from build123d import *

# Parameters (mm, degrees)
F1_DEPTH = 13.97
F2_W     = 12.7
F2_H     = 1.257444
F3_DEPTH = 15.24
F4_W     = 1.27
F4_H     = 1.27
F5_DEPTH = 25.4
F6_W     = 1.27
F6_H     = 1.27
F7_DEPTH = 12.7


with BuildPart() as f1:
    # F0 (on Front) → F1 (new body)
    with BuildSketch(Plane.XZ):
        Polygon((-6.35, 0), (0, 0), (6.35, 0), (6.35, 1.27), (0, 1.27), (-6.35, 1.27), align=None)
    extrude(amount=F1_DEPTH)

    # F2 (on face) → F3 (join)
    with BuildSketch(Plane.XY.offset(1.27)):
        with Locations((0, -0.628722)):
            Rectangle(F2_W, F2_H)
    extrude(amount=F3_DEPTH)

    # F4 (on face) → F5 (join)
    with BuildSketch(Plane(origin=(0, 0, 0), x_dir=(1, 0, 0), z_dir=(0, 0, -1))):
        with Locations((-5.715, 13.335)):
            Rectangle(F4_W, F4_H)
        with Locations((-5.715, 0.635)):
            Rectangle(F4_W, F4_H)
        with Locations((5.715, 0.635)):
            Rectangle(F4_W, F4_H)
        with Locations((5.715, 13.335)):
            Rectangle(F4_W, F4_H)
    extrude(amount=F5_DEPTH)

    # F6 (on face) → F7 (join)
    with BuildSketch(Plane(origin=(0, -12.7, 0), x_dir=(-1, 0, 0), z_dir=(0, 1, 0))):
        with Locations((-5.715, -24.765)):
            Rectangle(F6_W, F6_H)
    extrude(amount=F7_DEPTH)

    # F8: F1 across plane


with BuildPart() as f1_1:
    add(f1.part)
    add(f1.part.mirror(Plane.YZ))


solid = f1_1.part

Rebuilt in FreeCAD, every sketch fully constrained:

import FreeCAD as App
import Part
import Sketcher

V = App.Vector
Q = App.Units.Quantity

doc = App.newDocument("Part")
body = doc.addObject("PartDesign::Body", "Body")

# Sketch on XZ plane
sketch1 = body.newObject("Sketcher::SketchObject", "Sketch")
sketch1.AttachmentSupport = (doc.getObject("XZ_Plane"), [""])
sketch1.MapMode = "FlatFace"
sketch1.addGeometry([
    Part.LineSegment(V(-6.35, 0, 0), V(6.35, 0, 0)),
    Part.LineSegment(V(6.35, 0, 0), V(6.35, 1.27, 0)),
    Part.LineSegment(V(6.35, 1.27, 0), V(-6.35, 1.27, 0)),
    Part.LineSegment(V(-6.35, 1.27, 0), V(-6.35, 0, 0)),
], False)
sketch1.addConstraint([
    Sketcher.Constraint("Coincident", 0, 2, 1, 1),
    Sketcher.Constraint("Coincident", 1, 2, 2, 1),
    Sketcher.Constraint("Coincident", 2, 2, 3, 1),
    Sketcher.Constraint("Coincident", 3, 2, 0, 1),
    Sketcher.Constraint("Horizontal", 0),
    Sketcher.Constraint("Vertical", 1),
    Sketcher.Constraint("Horizontal", 2),
    Sketcher.Constraint("Vertical", 3),
    Sketcher.Constraint("Symmetric", 0, 2, 3, 2, -1, 1),
    Sketcher.Constraint("DistanceX", 0, 1, 0, 2, Q("0.5 in")),
    Sketcher.Constraint("DistanceY", 1, 1, 1, 2, Q("0.05 in")),
])
pad1 = body.newObject("PartDesign::Pad", "Pad")
pad1.Profile = sketch1
pad1.Length = Q("0.55 in")

# Sketch on XY plane
sketch2 = body.newObject("Sketcher::SketchObject", "Sketch001")
sketch2.AttachmentSupport = (doc.getObject("XY_Plane"), [""])
sketch2.MapMode = "FlatFace"
sketch2.AttachmentOffset = App.Placement(V(0, 0, 0.05 * 25.4), App.Rotation())
sketch2.addGeometry([
    Part.LineSegment(V(-6.35, 0, 0), V(-6.35, -1.257444, 0)),
    Part.LineSegment(V(-6.35, -1.257444, 0), V(6.35, -1.257444, 0)),
    Part.LineSegment(V(6.35, -1.257444, 0), V(6.35, 0, 0)),
    Part.LineSegment(V(6.35, 0, 0), V(-6.35, 0, 0)),
], False)
sketch2.addConstraint([
    Sketcher.Constraint("Coincident", 0, 2, 1, 1),
    Sketcher.Constraint("Coincident", 1, 2, 2, 1),
    Sketcher.Constraint("Coincident", 2, 2, 3, 1),
    Sketcher.Constraint("Coincident", 3, 2, 0, 1),
    Sketcher.Constraint("Vertical", 0),
    Sketcher.Constraint("Horizontal", 1),
    Sketcher.Constraint("Vertical", 2),
    Sketcher.Constraint("Horizontal", 3),
    Sketcher.Constraint("Symmetric", 2, 2, 3, 2, -1, 1),
    Sketcher.Constraint("DistanceX", 1, 1, 1, 2, Q("0.5 in")),
    Sketcher.Constraint("DistanceY", 0, 2, 0, 1, Q("1.257444 mm")),
])
pad2 = body.newObject("PartDesign::Pad", "Pad001")
pad2.Profile = sketch2
pad2.Length = Q("0.6 in")

# Sketch on XY plane
sketch3 = body.newObject("Sketcher::SketchObject", "Sketch002")
sketch3.AttachmentSupport = (doc.getObject("XY_Plane"), [""])
sketch3.MapMode = "FlatFace"
sketch3.addGeometry([
    Part.LineSegment(V(-6.35, -13.97, 0), V(-6.35, -12.7, 0)),  # 0
    Part.LineSegment(V(-6.35, -12.7, 0), V(-5.08, -12.7, 0)),  # 1
    Part.LineSegment(V(-5.08, -12.7, 0), V(-5.08, -13.97, 0)),  # 2
    Part.LineSegment(V(-5.08, -13.97, 0), V(-6.35, -13.97, 0)),  # 3
    Part.LineSegment(V(-6.35, -1.27, 0), V(-6.35, 0, 0)),  # 4
    Part.LineSegment(V(-6.35, 0, 0), V(-5.08, 0, 0)),  # 5
    Part.LineSegment(V(-5.08, 0, 0), V(-5.08, -1.27, 0)),  # 6
    Part.LineSegment(V(-5.08, -1.27, 0), V(-6.35, -1.27, 0)),  # 7
    Part.LineSegment(V(5.08, -1.27, 0), V(5.08, 0, 0)),  # 8
    Part.LineSegment(V(5.08, 0, 0), V(6.35, 0, 0)),  # 9
    Part.LineSegment(V(6.35, 0, 0), V(6.35, -1.27, 0)),  # 10
    Part.LineSegment(V(6.35, -1.27, 0), V(5.08, -1.27, 0)),  # 11
    Part.LineSegment(V(5.08, -13.97, 0), V(5.08, -12.7, 0)),  # 12
    Part.LineSegment(V(5.08, -12.7, 0), V(6.35, -12.7, 0)),  # 13
    Part.LineSegment(V(6.35, -12.7, 0), V(6.35, -13.97, 0)),  # 14
    Part.LineSegment(V(6.35, -13.97, 0), V(5.08, -13.97, 0)),  # 15
], False)
sketch3.addConstraint([
    Sketcher.Constraint("Coincident", 0, 2, 1, 1),
    Sketcher.Constraint("Coincident", 1, 2, 2, 1),
    Sketcher.Constraint("Coincident", 2, 2, 3, 1),
    Sketcher.Constraint("Coincident", 3, 2, 0, 1),
    Sketcher.Constraint("Coincident", 4, 2, 5, 1),
    Sketcher.Constraint("Coincident", 5, 2, 6, 1),
    Sketcher.Constraint("Coincident", 6, 2, 7, 1),
    Sketcher.Constraint("Coincident", 7, 2, 4, 1),
    Sketcher.Constraint("Coincident", 8, 2, 9, 1),
    Sketcher.Constraint("Coincident", 9, 2, 10, 1),
    Sketcher.Constraint("Coincident", 10, 2, 11, 1),
    Sketcher.Constraint("Coincident", 11, 2, 8, 1),
    Sketcher.Constraint("Coincident", 12, 2, 13, 1),
    Sketcher.Constraint("Coincident", 13, 2, 14, 1),
    Sketcher.Constraint("Coincident", 14, 2, 15, 1),
    Sketcher.Constraint("Coincident", 15, 2, 12, 1),
    Sketcher.Constraint("Vertical", 0),
    Sketcher.Constraint("Horizontal", 1),
    Sketcher.Constraint("Vertical", 2),
    Sketcher.Constraint("Horizontal", 3),
    Sketcher.Constraint("Vertical", 4),
    Sketcher.Constraint("Horizontal", 5),
    Sketcher.Constraint("Vertical", 6),
    Sketcher.Constraint("Horizontal", 7),
    Sketcher.Constraint("Vertical", 8),
    Sketcher.Constraint("Horizontal", 9),
    Sketcher.Constraint("Vertical", 10),
    Sketcher.Constraint("Horizontal", 11),
    Sketcher.Constraint("Vertical", 12),
    Sketcher.Constraint("Horizontal", 13),
    Sketcher.Constraint("Vertical", 14),
    Sketcher.Constraint("Horizontal", 15),
    Sketcher.Constraint("Symmetric", 5, 2, 8, 2, -1, 1),
    Sketcher.Constraint("Symmetric", 4, 2, 9, 2, -2),
    Sketcher.Constraint("Symmetric", 1, 2, 12, 2, -2),
    Sketcher.Constraint("Symmetric", 3, 2, 14, 2, -2),
    Sketcher.Constraint("Horizontal", 7, 2, 10, 2),
    Sketcher.Constraint("Vertical", 3, 2, 4, 2),
    Sketcher.Constraint("Vertical", 2, 2, 5, 2),
    Sketcher.Constraint("Equal", 15, 0),
    Sketcher.Constraint("Equal", 2, 4),
    Sketcher.Constraint("DistanceX", 1, 1, 1, 2, Q("0.05 in")),
    Sketcher.Constraint("DistanceY", 0, 2, -1, 1, Q("0.5 in")),
    Sketcher.Constraint("DistanceX", 1, 2, -1, 1, Q("0.2 in")),
])
pad3 = body.newObject("PartDesign::Pad", "Pad002")
pad3.Profile = sketch3
pad3.Length = Q("1 in")
pad3.Reversed = True

# Sketch on XZ plane
sketch4 = body.newObject("Sketcher::SketchObject", "Sketch003")
sketch4.AttachmentSupport = (doc.getObject("XZ_Plane"), [""])
sketch4.MapMode = "FlatFace"
sketch4.AttachmentOffset = App.Placement(V(0, 0, 0.5 * 25.4), App.Rotation())
sketch4.addGeometry([
    Part.LineSegment(V(6.35, -24.13, 0), V(6.35, -25.4, 0)),
    Part.LineSegment(V(6.35, -25.4, 0), V(5.08, -25.4, 0)),
    Part.LineSegment(V(5.08, -25.4, 0), V(5.08, -24.13, 0)),
    Part.LineSegment(V(5.08, -24.13, 0), V(6.35, -24.13, 0)),
], False)
sketch4.addConstraint([
    Sketcher.Constraint("Coincident", 0, 2, 1, 1),
    Sketcher.Constraint("Coincident", 1, 2, 2, 1),
    Sketcher.Constraint("Coincident", 2, 2, 3, 1),
    Sketcher.Constraint("Coincident", 3, 2, 0, 1),
    Sketcher.Constraint("Vertical", 0),
    Sketcher.Constraint("Horizontal", 1),
    Sketcher.Constraint("Vertical", 2),
    Sketcher.Constraint("Horizontal", 3),
    Sketcher.Constraint("Equal", 3, 0),
    Sketcher.Constraint("DistanceY", 0, 2, -1, 1, Q("1 in")),
    Sketcher.Constraint("DistanceX", 1, 2, 1, 1, Q("0.05 in")),
    Sketcher.Constraint("DistanceX", -1, 1, 1, 2, Q("0.2 in")),
])
pad4 = body.newObject("PartDesign::Pad", "Pad003")
pad4.Profile = sketch4
pad4.Length = Q("0.5 in")
pad4.Reversed = True
body2 = doc.addObject("PartDesign::Body", "Body001")
doc.recompute()

body2.BaseFeature = body
doc.recompute()

mirroring = doc.addObject("Part::Mirroring", "Mirroring")
mirroring.Source = body
mirroring.Base = V(0, 0, 0)
mirroring.Normal = V(1, 0, 0)
body3 = doc.addObject("PartDesign::Body", "Body002")
body3.BaseFeature = mirroring
boolean = body2.newObject("PartDesign::Boolean", "Boolean")
boolean.Type = "Fuse"
boolean.addObjects([body3])
doc.recompute()
mirroring.Visibility = False

doc.recompute()
